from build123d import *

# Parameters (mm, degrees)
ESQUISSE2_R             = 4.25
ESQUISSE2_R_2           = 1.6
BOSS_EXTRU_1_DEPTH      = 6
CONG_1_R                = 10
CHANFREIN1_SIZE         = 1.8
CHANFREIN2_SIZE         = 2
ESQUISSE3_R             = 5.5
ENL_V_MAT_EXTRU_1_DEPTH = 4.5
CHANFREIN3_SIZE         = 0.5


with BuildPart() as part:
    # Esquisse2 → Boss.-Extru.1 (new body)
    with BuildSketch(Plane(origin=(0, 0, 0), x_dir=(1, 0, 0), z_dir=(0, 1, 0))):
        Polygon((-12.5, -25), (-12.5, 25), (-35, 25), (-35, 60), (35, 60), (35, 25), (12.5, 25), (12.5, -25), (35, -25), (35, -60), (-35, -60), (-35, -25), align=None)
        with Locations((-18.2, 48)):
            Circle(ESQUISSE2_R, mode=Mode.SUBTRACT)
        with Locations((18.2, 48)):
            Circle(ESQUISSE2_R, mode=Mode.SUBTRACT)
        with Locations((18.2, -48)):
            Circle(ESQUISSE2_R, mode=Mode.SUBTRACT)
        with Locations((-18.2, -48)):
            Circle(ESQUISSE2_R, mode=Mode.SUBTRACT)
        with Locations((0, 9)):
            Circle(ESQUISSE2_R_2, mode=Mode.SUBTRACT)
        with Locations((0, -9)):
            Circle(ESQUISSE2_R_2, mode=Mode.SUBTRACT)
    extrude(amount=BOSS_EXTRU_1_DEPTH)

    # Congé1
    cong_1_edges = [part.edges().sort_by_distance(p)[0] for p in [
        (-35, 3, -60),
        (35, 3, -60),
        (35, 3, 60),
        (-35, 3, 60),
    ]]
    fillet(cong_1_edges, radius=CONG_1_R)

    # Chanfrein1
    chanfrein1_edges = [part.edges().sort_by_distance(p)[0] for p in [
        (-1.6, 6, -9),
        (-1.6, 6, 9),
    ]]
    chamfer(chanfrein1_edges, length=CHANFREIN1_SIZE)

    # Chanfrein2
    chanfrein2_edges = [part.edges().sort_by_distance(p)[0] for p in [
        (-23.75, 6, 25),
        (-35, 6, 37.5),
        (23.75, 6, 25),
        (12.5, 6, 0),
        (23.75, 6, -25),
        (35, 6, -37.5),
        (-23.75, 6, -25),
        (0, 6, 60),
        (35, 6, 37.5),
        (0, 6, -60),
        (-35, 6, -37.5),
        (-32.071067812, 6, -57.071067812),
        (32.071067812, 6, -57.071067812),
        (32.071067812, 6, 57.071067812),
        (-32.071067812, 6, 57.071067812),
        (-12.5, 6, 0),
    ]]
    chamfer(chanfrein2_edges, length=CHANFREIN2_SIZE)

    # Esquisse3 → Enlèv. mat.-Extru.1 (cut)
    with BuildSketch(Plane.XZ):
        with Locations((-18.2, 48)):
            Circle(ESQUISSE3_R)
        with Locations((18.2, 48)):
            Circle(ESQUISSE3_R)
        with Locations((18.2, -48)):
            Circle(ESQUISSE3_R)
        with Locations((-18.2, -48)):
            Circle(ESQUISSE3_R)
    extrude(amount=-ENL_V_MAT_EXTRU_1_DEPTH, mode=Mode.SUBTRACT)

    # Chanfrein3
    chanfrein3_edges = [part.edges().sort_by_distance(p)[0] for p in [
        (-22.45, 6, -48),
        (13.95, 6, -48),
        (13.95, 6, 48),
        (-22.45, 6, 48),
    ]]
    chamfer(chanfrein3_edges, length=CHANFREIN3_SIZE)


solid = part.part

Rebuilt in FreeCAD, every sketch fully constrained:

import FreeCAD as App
import Part
import Sketcher


def edges_at(feature, points):
    """Names of the edges that pass closest to the given points."""
    edges = feature.Shape.Edges
    near = lambda p: min(range(len(edges)), key=lambda i: edges[i].distToShape(Part.Vertex(*p))[0])
    return sorted({f"Edge{near(p) + 1}" for p in points})

doc = App.newDocument("Part")
body = doc.addObject("PartDesign::Body", "Body")

sketch1 = body.newObject("Sketcher::SketchObject", "Sketch")
sketch1.AttachmentSupport = (doc.getObject("XZ_Plane"), [""])
sketch1.MapMode = "FlatFace"
sketch1.addGeometry([
    Part.LineSegment(App.Vector(-12.5, -25, 0), App.Vector(-12.5, 25, 0)),
    Part.LineSegment(App.Vector(-12.5, 25, 0), App.Vector(-35, 25, 0)),
    Part.LineSegment(App.Vector(-35, 25, 0), App.Vector(-35, 60, 0)),
    Part.LineSegment(App.Vector(-35, 60, 0), App.Vector(35, 60, 0)),
    Part.LineSegment(App.Vector(35, 60, 0), App.Vector(35, 25, 0)),
    Part.LineSegment(App.Vector(35, 25, 0), App.Vector(12.5, 25, 0)),
    Part.LineSegment(App.Vector(12.5, 25, 0), App.Vector(12.5, -25, 0)),
    Part.LineSegment(App.Vector(12.5, -25, 0), App.Vector(35, -25, 0)),
    Part.LineSegment(App.Vector(35, -25, 0), App.Vector(35, -60, 0)),
    Part.LineSegment(App.Vector(35, -60, 0), App.Vector(-35, -60, 0)),
    Part.LineSegment(App.Vector(-35, -60, 0), App.Vector(-35, -25, 0)),
    Part.LineSegment(App.Vector(-35, -25, 0), App.Vector(-12.5, -25, 0)),
    Part.Circle(App.Vector(18.2, 48, 0), App.Vector(0, 0, 1), 4.25),
    Part.Circle(App.Vector(-18.2, 48, 0), App.Vector(0, 0, 1), 4.25),
    Part.Circle(App.Vector(0, 9, 0), App.Vector(0, 0, 1), 1.6),
    Part.Circle(App.Vector(18.2, -48, 0), App.Vector(0, 0, 1), 4.25),
    Part.Circle(App.Vector(0, -9, 0), App.Vector(0, 0, 1), 1.6),
    Part.Circle(App.Vector(-18.2, -48, 0), App.Vector(0, 0, 1), 4.25),
], False)
sketch1.addConstraint([
    Sketcher.Constraint("Coincident", 0, 2, 1, 1),
    Sketcher.Constraint("Coincident", 1, 2, 2, 1),
    Sketcher.Constraint("Coincident", 2, 2, 3, 1),
    Sketcher.Constraint("Coincident", 3, 2, 4, 1),
    Sketcher.Constraint("Coincident", 4, 2, 5, 1),
    Sketcher.Constraint("Coincident", 5, 2, 6, 1),
    Sketcher.Constraint("Coincident", 6, 2, 7, 1),
    Sketcher.Constraint("Coincident", 7, 2, 8, 1),
    Sketcher.Constraint("Coincident", 8, 2, 9, 1),
    Sketcher.Constraint("Coincident", 9, 2, 10, 1),
    Sketcher.Constraint("Coincident", 10, 2, 11, 1),
    Sketcher.Constraint("Coincident", 11, 2, 0, 1),
    Sketcher.Constraint("Vertical", 0),
    Sketcher.Constraint("Horizontal", 1),
    Sketcher.Constraint("Vertical", 2),
    Sketcher.Constraint("Horizontal", 3),
    Sketcher.Constraint("Vertical", 4),
    Sketcher.Constraint("Horizontal", 5),
    Sketcher.Constraint("Vertical", 6),
    Sketcher.Constraint("Horizontal", 7),
    Sketcher.Constraint("Vertical", 8),
    Sketcher.Constraint("Horizontal", 9),
    Sketcher.Constraint("Vertical", 10),
    Sketcher.Constraint("Horizontal", 11),
    Sketcher.Constraint("Equal", 12, 13),
    Sketcher.Constraint("Equal", 13, 15),
    Sketcher.Constraint("Equal", 14, 16),
    Sketcher.Constraint("Equal", 15, 17),
    Sketcher.Constraint("Symmetric", 13, 3, 15, 3, -1, 1),
    Sketcher.Constraint("Symmetric", 14, 3, 16, 3, -1, 1),
    Sketcher.Constraint("Symmetric", 12, 3, 17, 3, -1, 1),
    Sketcher.Constraint("Symmetric", 0, 2, 6, 2, -1, 1),
    Sketcher.Constraint("Symmetric", 2, 2, 8, 2, -1, 1),
    Sketcher.Constraint("Symmetric", 4, 2, 10, 2, -1, 1),
    Sketcher.Constraint("Symmetric", 12, 3, 13, 3, -2),
    Sketcher.Constraint("Symmetric", 1, 2, 4, 2, -2),
    Sketcher.Constraint("PointOnObject", 14, 3, -2),
    Sketcher.Constraint("Diameter", 12, 8.5),
    Sketcher.Constraint("Diameter", 14, 3.2),
    Sketcher.Constraint("DistanceX", 3, 1, 3, 2, 70.0),
    Sketcher.Constraint("DistanceY", 0, 1, 0, 2, 50.0),
    Sketcher.Constraint("DistanceY", 2, 1, 2, 2, 35.0),
    Sketcher.Constraint("DistanceX", 1, 2, 1, 1, 22.5),
    Sketcher.Constraint("DistanceY", -1, 1, 12, 3, 48.0),
    Sketcher.Constraint("DistanceY", -1, 1, 14, 3, 9.0),
    Sketcher.Constraint("DistanceX", -1, 1, 12, 3, 18.2),
])
pad1 = body.newObject("PartDesign::Pad", "Pad")
pad1.Profile = sketch1
pad1.Length = 6
pad1.Reversed = True
doc.recompute()

fillet = body.newObject("PartDesign::Fillet", "Fillet")
fillet.Base = (pad1, edges_at(pad1, [
    (-35, 3, -60),
    (35, 3, -60),
    (35, 3, 60),
    (-35, 3, 60),
]))
fillet.Radius = 10
doc.recompute()

chamfer = body.newObject("PartDesign::Chamfer", "Chamfer")
chamfer.Base = (fillet, edges_at(fillet, [(-1.6, 6, -9), (-1.6, 6, 9)]))
chamfer.Size = 1.8
doc.recompute()

chamfer2 = body.newObject("PartDesign::Chamfer", "Chamfer001")
chamfer2.Base = (chamfer, edges_at(chamfer, [
    (-23.75, 6, 25),
    (-35, 6, 37.5),
    (23.75, 6, 25),
    (12.5, 6, 0),
    (23.75, 6, -25),
    (35, 6, -37.5),
    (-23.75, 6, -25),
    (0, 6, 60),
    (35, 6, 37.5),
    (0, 6, -60),
    (-35, 6, -37.5),
    (-32.071, 6, -57.071),
    (32.071, 6, -57.071),
    (32.071, 6, 57.071),
    (-32.071, 6, 57.071),
    (-12.5, 6, 0),
]))
chamfer2.Size = 2

sketch2 = body.newObject("Sketcher::SketchObject", "Sketch001")
sketch2.AttachmentSupport = (doc.getObject("XZ_Plane"), [""])
sketch2.MapMode = "FlatFace"
sketch2.addGeometry([
    Part.Circle(App.Vector(-18.2, 48, 0), App.Vector(0, 0, 1), 5.5),
    Part.Circle(App.Vector(18.2, 48, 0), App.Vector(0, 0, 1), 5.5),
    Part.Circle(App.Vector(18.2, -48, 0), App.Vector(0, 0, 1), 5.5),
    Part.Circle(App.Vector(-18.2, -48, 0), App.Vector(0, 0, 1), 5.5),
], False)
sketch2.addConstraint([
    Sketcher.Constraint("Equal", 0, 1),
    Sketcher.Constraint("Equal", 1, 2),
    Sketcher.Constraint("Equal", 2, 3),
    Sketcher.Constraint("Symmetric", 0, 3, 2, 3, -1, 1),
    Sketcher.Constraint("Symmetric", 1, 3, 3, 3, -1, 1),
    Sketcher.Constraint("Symmetric", 0, 3, 1, 3, -2),
    Sketcher.Constraint("Diameter", 0, 11.0),
    Sketcher.Constraint("DistanceY", -1, 1, 0, 3, 48.0),
    Sketcher.Constraint("DistanceX", 0, 3, -1, 1, 18.2),
])
pocket1 = body.newObject("PartDesign::Pocket", "Pocket")
pocket1.Profile = sketch2
pocket1.Length = 4.5
doc.recompute()

chamfer3 = body.newObject("PartDesign::Chamfer", "Chamfer002")
chamfer3.Base = (pocket1, edges_at(pocket1, [
    (-22.45, 6, -48),
    (13.95, 6, -48),
    (13.95, 6, 48),
    (-22.45, 6, 48),
]))
chamfer3.Size = 0.5

doc.recompute()
